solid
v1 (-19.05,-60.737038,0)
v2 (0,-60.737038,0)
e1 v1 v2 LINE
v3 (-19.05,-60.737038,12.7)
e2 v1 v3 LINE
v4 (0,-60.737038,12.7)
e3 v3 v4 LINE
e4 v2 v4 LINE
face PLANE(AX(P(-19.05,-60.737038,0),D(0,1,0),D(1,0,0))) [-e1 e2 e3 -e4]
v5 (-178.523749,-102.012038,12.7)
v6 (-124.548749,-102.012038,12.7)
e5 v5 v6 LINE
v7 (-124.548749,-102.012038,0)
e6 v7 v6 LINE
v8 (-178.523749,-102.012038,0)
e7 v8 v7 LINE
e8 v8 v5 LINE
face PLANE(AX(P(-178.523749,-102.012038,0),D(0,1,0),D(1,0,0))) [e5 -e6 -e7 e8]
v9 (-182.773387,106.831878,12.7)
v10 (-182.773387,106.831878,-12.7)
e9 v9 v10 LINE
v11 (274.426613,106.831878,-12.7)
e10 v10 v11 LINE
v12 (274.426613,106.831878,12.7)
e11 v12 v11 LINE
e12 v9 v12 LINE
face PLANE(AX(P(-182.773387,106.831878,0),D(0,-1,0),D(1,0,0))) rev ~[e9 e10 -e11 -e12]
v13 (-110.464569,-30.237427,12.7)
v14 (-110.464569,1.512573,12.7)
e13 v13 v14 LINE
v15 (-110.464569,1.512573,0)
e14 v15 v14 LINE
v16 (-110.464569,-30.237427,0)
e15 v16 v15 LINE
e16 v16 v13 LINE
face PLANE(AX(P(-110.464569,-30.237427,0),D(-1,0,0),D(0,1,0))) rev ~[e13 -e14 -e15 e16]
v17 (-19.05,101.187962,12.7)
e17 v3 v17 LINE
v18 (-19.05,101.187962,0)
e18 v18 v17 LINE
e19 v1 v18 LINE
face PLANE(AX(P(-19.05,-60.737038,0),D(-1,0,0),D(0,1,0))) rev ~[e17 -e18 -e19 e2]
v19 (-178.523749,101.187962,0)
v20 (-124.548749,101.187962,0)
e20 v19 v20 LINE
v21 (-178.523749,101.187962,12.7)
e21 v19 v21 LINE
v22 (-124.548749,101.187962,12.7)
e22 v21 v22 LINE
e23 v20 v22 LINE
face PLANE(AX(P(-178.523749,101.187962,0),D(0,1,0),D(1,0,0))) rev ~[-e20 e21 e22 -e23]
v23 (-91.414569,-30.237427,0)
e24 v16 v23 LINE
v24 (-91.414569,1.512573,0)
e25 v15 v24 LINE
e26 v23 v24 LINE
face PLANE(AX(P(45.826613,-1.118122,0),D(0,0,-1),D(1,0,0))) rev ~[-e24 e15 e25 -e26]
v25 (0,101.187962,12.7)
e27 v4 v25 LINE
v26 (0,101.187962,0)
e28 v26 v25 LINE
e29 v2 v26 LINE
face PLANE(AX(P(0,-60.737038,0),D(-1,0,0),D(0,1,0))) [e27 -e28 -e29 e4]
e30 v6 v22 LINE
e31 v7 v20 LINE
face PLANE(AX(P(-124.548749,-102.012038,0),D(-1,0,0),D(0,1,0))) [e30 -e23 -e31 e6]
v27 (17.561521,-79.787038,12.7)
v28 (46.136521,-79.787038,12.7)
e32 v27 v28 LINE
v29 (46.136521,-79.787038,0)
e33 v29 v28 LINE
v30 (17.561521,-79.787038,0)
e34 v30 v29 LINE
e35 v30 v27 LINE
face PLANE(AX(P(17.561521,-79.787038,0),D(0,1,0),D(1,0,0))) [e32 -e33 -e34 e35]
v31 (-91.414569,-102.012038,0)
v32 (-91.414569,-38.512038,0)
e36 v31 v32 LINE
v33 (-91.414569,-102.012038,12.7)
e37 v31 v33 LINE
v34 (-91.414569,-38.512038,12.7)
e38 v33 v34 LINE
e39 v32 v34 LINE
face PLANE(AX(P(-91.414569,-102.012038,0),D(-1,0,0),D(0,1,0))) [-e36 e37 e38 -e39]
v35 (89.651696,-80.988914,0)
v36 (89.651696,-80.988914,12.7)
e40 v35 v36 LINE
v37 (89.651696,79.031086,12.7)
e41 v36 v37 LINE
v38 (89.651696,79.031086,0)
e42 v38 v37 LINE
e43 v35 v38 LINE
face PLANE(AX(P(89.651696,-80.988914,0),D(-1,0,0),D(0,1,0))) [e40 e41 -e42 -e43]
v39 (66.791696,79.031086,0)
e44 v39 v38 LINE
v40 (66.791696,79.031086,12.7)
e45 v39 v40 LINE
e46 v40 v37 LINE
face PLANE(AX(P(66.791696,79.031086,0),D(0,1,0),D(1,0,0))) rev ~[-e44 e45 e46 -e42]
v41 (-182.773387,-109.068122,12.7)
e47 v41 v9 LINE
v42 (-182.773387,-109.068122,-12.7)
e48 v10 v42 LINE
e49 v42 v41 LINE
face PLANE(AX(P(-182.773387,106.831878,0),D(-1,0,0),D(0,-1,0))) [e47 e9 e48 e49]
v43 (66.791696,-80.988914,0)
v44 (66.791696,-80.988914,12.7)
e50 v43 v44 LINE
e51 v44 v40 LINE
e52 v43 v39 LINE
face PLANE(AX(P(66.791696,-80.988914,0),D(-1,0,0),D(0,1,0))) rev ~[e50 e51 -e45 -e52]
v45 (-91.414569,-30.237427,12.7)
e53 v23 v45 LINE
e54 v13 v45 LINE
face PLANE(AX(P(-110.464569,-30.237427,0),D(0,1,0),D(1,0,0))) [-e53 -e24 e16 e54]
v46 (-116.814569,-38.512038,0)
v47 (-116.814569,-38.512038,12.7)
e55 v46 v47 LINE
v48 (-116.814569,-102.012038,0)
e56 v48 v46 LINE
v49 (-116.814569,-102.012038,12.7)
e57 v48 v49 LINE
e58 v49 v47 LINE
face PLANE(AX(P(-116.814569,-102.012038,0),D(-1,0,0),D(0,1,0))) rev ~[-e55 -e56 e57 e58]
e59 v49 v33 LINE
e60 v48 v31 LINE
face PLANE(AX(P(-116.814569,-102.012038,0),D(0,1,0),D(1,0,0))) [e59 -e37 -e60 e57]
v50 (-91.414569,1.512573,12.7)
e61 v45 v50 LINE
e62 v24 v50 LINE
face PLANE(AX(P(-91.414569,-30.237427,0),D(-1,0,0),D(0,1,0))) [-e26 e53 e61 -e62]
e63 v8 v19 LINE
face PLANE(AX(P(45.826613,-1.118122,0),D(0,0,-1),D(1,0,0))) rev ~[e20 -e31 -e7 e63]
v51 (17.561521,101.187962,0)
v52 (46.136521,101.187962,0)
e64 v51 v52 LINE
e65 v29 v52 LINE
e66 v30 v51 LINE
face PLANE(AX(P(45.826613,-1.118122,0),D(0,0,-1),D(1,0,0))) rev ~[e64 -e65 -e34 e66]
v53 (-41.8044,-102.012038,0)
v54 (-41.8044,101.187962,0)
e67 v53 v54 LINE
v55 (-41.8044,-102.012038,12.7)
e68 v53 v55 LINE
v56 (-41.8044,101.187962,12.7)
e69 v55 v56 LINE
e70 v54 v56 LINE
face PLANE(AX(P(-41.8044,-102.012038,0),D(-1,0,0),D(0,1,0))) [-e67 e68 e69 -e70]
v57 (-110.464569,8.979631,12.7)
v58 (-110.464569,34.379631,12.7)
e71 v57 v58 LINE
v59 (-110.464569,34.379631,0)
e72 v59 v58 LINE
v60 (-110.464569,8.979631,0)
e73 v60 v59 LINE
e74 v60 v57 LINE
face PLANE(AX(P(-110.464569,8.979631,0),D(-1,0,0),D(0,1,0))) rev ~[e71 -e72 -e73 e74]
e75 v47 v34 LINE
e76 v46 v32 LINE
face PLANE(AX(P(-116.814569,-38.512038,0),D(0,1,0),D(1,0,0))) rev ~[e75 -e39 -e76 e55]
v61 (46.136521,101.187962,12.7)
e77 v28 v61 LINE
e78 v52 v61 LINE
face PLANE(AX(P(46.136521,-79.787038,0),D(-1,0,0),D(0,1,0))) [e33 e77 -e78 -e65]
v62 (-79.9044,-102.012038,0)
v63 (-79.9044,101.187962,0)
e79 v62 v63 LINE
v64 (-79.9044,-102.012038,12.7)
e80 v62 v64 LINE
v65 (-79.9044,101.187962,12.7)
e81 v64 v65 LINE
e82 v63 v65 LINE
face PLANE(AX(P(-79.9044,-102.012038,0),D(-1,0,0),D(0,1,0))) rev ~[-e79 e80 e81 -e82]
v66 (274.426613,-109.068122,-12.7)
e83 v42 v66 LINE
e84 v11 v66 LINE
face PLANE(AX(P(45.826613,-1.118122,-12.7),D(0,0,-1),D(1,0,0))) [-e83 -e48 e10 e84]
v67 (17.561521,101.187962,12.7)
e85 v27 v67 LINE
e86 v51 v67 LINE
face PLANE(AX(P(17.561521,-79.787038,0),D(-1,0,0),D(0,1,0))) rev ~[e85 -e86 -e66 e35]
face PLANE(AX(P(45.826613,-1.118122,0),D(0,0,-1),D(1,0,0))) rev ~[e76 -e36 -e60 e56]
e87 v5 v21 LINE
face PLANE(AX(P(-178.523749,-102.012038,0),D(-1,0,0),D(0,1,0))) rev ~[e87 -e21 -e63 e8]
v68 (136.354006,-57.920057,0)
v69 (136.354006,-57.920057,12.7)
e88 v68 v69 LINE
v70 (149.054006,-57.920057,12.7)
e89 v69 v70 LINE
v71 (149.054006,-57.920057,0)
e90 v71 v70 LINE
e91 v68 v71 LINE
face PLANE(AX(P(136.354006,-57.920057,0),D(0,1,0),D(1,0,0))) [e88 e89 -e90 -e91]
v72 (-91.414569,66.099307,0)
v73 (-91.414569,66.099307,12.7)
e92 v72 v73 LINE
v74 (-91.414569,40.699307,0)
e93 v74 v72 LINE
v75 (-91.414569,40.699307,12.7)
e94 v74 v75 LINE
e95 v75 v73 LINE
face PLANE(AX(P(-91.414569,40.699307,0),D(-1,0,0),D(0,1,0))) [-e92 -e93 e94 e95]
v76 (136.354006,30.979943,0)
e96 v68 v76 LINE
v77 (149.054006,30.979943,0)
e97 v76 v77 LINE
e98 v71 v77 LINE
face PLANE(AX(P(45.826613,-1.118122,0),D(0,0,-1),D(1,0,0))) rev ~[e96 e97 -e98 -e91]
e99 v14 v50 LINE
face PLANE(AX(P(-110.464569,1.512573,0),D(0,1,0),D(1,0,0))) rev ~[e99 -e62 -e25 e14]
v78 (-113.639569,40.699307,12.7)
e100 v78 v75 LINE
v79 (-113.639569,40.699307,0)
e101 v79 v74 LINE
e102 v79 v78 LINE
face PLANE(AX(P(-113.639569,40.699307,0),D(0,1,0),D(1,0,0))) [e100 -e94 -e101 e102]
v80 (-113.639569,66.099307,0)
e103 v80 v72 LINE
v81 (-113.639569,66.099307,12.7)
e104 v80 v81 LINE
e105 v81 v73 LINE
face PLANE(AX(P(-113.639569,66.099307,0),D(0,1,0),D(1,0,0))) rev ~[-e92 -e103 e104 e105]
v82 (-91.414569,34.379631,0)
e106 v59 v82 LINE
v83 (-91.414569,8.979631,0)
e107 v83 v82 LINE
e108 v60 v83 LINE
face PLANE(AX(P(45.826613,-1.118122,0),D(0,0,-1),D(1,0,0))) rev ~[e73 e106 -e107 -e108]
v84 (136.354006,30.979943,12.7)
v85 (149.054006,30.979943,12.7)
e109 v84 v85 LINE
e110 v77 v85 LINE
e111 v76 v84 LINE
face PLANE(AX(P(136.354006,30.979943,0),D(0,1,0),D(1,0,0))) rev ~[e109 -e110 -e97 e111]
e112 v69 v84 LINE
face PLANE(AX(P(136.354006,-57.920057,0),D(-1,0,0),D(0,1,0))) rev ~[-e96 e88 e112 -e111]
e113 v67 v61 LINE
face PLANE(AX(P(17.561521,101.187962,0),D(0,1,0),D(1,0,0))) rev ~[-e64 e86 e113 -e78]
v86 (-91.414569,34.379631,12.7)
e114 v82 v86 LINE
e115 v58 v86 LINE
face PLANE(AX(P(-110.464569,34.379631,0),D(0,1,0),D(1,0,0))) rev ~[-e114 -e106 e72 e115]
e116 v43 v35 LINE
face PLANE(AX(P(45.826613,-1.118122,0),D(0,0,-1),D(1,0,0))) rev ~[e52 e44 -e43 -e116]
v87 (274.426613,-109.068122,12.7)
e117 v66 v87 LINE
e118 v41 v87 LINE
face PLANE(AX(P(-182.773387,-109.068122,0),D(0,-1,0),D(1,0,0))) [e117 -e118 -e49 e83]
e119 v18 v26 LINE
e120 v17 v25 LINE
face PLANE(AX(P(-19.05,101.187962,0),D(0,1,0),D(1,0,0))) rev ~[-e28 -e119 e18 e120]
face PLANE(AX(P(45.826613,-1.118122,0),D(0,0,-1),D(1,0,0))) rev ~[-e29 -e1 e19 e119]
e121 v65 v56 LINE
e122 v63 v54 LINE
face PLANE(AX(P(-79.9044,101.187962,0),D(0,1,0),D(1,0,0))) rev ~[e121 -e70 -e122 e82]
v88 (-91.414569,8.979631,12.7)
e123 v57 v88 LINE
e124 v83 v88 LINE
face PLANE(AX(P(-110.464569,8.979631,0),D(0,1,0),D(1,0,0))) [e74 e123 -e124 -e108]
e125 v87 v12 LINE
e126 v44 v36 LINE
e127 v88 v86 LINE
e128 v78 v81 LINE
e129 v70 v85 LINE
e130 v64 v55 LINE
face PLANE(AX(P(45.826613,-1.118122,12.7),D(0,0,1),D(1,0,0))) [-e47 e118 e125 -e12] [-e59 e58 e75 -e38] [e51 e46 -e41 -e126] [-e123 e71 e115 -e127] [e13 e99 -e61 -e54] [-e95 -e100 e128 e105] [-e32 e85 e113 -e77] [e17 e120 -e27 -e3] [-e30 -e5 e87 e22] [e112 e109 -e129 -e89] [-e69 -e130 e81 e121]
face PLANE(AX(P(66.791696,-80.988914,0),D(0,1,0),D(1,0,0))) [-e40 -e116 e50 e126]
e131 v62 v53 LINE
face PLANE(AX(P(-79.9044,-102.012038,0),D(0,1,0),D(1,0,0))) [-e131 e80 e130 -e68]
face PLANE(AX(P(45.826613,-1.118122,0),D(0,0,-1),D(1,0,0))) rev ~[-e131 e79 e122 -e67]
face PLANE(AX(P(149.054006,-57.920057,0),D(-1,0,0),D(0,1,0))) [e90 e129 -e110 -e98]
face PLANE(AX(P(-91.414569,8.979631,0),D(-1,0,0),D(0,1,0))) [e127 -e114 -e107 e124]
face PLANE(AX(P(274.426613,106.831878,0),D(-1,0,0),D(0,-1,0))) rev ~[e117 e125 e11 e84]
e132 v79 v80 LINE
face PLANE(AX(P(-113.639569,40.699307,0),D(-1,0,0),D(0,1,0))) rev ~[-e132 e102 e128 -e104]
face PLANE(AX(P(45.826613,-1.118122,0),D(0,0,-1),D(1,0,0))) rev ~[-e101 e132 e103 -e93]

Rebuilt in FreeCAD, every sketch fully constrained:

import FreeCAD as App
import Part
import Sketcher

V = App.Vector
Q = App.Units.Quantity


def add_polygon(sketch, points):
    """Adds a closed chain of lines whose ends are joined by coincident constraints."""
    first, n = sketch.GeometryCount, len(points)
    for a, b in zip(points, points[1:] + points[:1]):
        sketch.addGeometry(Part.LineSegment(App.Vector(*a, 0), App.Vector(*b, 0)), False)
    for i in range(n):
        sketch.addConstraint(Sketcher.Constraint("Coincident", first + i, 2, first + (i + 1) % n, 1))

doc = App.newDocument("Part")
body = doc.addObject("PartDesign::Body", "Body")

sketch1 = body.newObject("Sketcher::SketchObject", "Sketch")
sketch1.AttachmentSupport = (doc.getObject("XY_Plane"), [""])
sketch1.MapMode = "FlatFace"
add_polygon(sketch1, [(-182.773387, 106.831878), (-182.773387, -109.068122), (274.426613, -109.068122), (274.426613, 106.831878)])
add_polygon(sketch1, [(-91.414569, -102.012038), (-116.814569, -102.012038), (-116.814569, -38.512038), (-91.414569, -38.512038)])
add_polygon(sketch1, [(-91.414569, -30.237427), (-110.464569, -30.237427), (-110.464569, 1.512573), (-91.414569, 1.512573)])
add_polygon(sketch1, [(89.651696, -80.988914), (66.791696, -80.988914), (66.791696, 79.031086), (89.651696, 79.031086)])
add_polygon(sketch1, [(149.054006, -57.920057), (136.354006, -57.920057), (136.354006, 30.979943), (149.054006, 30.979943)])
add_polygon(sketch1, [(-124.548749, -102.012038), (-178.523749, -102.012038), (-178.523749, 101.187962), (-124.548749, 101.187962)])
add_polygon(sketch1, [(-91.414569, 8.979631), (-110.464569, 8.979631), (-110.464569, 34.379631), (-91.414569, 34.379631)])
add_polygon(sketch1, [(-41.8044, -102.012038), (-79.9044, -102.012038), (-79.9044, 101.187962), (-41.8044, 101.187962)])
add_polygon(sketch1, [(-91.414569, 40.699307), (-113.639569, 40.699307), (-113.639569, 66.099307), (-91.414569, 66.099307)])
add_polygon(sketch1, [(0, -60.737038), (-19.05, -60.737038), (-19.05, 101.187962), (0, 101.187962)])
add_polygon(sketch1, [(46.136521, -79.787038), (17.561521, -79.787038), (17.561521, 101.187962), (46.136521, 101.187962)])
sketch1.addConstraint([
    Sketcher.Constraint("Vertical", 0),
    Sketcher.Constraint("Horizontal", 1),
    Sketcher.Constraint("Vertical", 2),
    Sketcher.Constraint("Horizontal", 3),
    Sketcher.Constraint("Horizontal", 4),
    Sketcher.Constraint("Vertical", 5),
    Sketcher.Constraint("Horizontal", 6),
    Sketcher.Constraint("Vertical", 7),
    Sketcher.Constraint("Horizontal", 8),
    Sketcher.Constraint("Vertical", 9),
    Sketcher.Constraint("Horizontal", 10),
    Sketcher.Constraint("Vertical", 11),
    Sketcher.Constraint("Horizontal", 12),
    Sketcher.Constraint("Vertical", 13),
    Sketcher.Constraint("Horizontal", 14),
    Sketcher.Constraint("Vertical", 15),
    Sketcher.Constraint("Horizontal", 16),
    Sketcher.Constraint("Vertical", 17),
    Sketcher.Constraint("Horizontal", 18),
    Sketcher.Constraint("Vertical", 19),
    Sketcher.Constraint("Horizontal", 20),
    Sketcher.Constraint("Vertical", 21),
    Sketcher.Constraint("Horizontal", 22),
    Sketcher.Constraint("Vertical", 23),
    Sketcher.Constraint("Horizontal", 24),
    Sketcher.Constraint("Vertical", 25),
    Sketcher.Constraint("Horizontal", 26),
    Sketcher.Constraint("Vertical", 27),
    Sketcher.Constraint("Horizontal", 28),
    Sketcher.Constraint("Vertical", 29),
    Sketcher.Constraint("Horizontal", 30),
    Sketcher.Constraint("Vertical", 31),
    Sketcher.Constraint("Horizontal", 32),
    Sketcher.Constraint("Vertical", 33),
    Sketcher.Constraint("Horizontal", 34),
    Sketcher.Constraint("Vertical", 35),
    Sketcher.Constraint("Horizontal", 36),
    Sketcher.Constraint("Vertical", 37),
    Sketcher.Constraint("Horizontal", 38),
    Sketcher.Constraint("Vertical", 39),
    Sketcher.Constraint("Horizontal", 40),
    Sketcher.Constraint("Vertical", 41),
    Sketcher.Constraint("Horizontal", 42),
    Sketcher.Constraint("Vertical", 43),
    Sketcher.Constraint("PointOnObject", 38, 2, -2),
    Sketcher.Constraint("Horizontal", 7, 2, 20, 2),
    Sketcher.Constraint("Horizontal", 23, 2, 28, 2),
    Sketcher.Constraint("Horizontal", 22, 2, 29, 2),
    Sketcher.Constraint("Horizontal", 30, 2, 37, 2),
    Sketcher.Constraint("Horizontal", 38, 2, 41, 2),
    Sketcher.Constraint("Vertical", 7, 2, 10, 2),
    Sketcher.Constraint("Vertical", 9, 2, 24, 2),
    Sketcher.Constraint("Vertical", 11, 2, 26, 2),
    Sketcher.Constraint("Vertical", 27, 2, 34, 2),
    Sketcher.Constraint("Equal", 26, 36),
    Sketcher.Constraint("Equal", 6, 25),
    Sketcher.Constraint("Equal", 27, 33),
    Sketcher.Constraint("DistanceX", 1, 1, 1, 2, Q("18 in")),
    Sketcher.Constraint("DistanceX", 4, 2, 4, 1, Q("1 in")),
    Sketcher.Constraint("DistanceY", 21, 1, 21, 2, Q("8 in")),
    Sketcher.Constraint("DistanceX", 12, 2, 12, 1, Q("0.9 in")),
    Sketcher.Constraint("DistanceX", 16, 2, 16, 1, Q("0.5 in")),
    Sketcher.Constraint("DistanceX", 28, 2, 28, 1, Q("1.5 in")),
    Sketcher.Constraint("DistanceY", 0, 2, 0, 1, Q("8.5 in")),
    Sketcher.Constraint("DistanceY", 5, 1, 5, 2, Q("2.5 in")),
    Sketcher.Constraint("DistanceY", 13, 1, 13, 2, Q("6.3 in")),
    Sketcher.Constraint("DistanceY", 17, 1, 17, 2, Q("3.5 in")),
    Sketcher.Constraint("DistanceX", 8, 2, 8, 1, Q("0.75 in")),
    Sketcher.Constraint("DistanceY", 9, 1, 9, 2, Q("1.25 in")),
    Sketcher.Constraint("DistanceX", 20, 2, 20, 1, Q("2.125 in")),
    Sketcher.Constraint("DistanceX", 32, 2, 32, 1, Q("0.875 in")),
    Sketcher.Constraint("DistanceX", 40, 2, 40, 1, Q("1.125 in")),
    Sketcher.Constraint("DistanceY", 37, 1, 37, 2, Q("6.375 in")),
    Sketcher.Constraint("DistanceY", 41, 1, 41, 2, Q("7.125 in")),
    Sketcher.Constraint("DistanceX", 28, 2, -1, 1, 79.9044),
    Sketcher.Constraint("DistanceY", -1, 1, 2, 2, 106.831878),
    Sketcher.Constraint("DistanceX", 4, 2, -1, 1, 116.814569),
    Sketcher.Constraint("DistanceY", 4, 2, -1, 1, 102.012038),
    Sketcher.Constraint("DistanceX", 20, 2, -1, 1, 178.523749),
    Sketcher.Constraint("DistanceY", -1, 1, 24, 2, 8.979631),
    Sketcher.Constraint("DistanceX", -1, 1, 40, 2, 17.561521),
    Sketcher.Constraint("DistanceX", 0, 2, 4, 2, 65.958818),
    Sketcher.Constraint("DistanceY", 5, 2, 8, 2, 8.274611),
    Sketcher.Constraint("DistanceX", 15, 2, 16, 2, 46.70231),
    Sketcher.Constraint("DistanceX", -1, 1, 12, 2, 66.791696),
    Sketcher.Constraint("DistanceY", 12, 2, -1, 1, 80.988914),
    Sketcher.Constraint("DistanceY", 16, 2, -1, 1, 57.920057),
    Sketcher.Constraint("DistanceY", -1, 1, 32, 2, 40.699307),
])
pad1 = body.newObject("PartDesign::Pad", "Pad")
pad1.Profile = sketch1
pad1.Length = Q("0.5 in")

sketch2 = body.newObject("Sketcher::SketchObject", "Sketch001")
sketch2.AttachmentSupport = (doc.getObject("XY_Plane"), [""])
sketch2.MapMode = "FlatFace"
add_polygon(sketch2, [(-182.773387, -109.068122), (-182.773387, 106.831878), (274.426613, 106.831878), (274.426613, -109.068122)])
sketch2.addConstraint([
    Sketcher.Constraint("Vertical", 0),
    Sketcher.Constraint("Horizontal", 1),
    Sketcher.Constraint("Vertical", 2),
    Sketcher.Constraint("Horizontal", 3),
    Sketcher.Constraint("DistanceX", 1, 1, 1, 2, Q("18 in")),
    Sketcher.Constraint("DistanceY", 0, 1, 0, 2, Q("8.5 in")),
    Sketcher.Constraint("DistanceY", -1, 1, 0, 2, 106.831878),
    Sketcher.Constraint("DistanceX", 0, 2, -1, 1, 182.773387),
])
pad2 = body.newObject("PartDesign::Pad", "Pad001")
pad2.Profile = sketch2
pad2.Length = Q("0.5 in")
pad2.Reversed = True

doc.recompute()
